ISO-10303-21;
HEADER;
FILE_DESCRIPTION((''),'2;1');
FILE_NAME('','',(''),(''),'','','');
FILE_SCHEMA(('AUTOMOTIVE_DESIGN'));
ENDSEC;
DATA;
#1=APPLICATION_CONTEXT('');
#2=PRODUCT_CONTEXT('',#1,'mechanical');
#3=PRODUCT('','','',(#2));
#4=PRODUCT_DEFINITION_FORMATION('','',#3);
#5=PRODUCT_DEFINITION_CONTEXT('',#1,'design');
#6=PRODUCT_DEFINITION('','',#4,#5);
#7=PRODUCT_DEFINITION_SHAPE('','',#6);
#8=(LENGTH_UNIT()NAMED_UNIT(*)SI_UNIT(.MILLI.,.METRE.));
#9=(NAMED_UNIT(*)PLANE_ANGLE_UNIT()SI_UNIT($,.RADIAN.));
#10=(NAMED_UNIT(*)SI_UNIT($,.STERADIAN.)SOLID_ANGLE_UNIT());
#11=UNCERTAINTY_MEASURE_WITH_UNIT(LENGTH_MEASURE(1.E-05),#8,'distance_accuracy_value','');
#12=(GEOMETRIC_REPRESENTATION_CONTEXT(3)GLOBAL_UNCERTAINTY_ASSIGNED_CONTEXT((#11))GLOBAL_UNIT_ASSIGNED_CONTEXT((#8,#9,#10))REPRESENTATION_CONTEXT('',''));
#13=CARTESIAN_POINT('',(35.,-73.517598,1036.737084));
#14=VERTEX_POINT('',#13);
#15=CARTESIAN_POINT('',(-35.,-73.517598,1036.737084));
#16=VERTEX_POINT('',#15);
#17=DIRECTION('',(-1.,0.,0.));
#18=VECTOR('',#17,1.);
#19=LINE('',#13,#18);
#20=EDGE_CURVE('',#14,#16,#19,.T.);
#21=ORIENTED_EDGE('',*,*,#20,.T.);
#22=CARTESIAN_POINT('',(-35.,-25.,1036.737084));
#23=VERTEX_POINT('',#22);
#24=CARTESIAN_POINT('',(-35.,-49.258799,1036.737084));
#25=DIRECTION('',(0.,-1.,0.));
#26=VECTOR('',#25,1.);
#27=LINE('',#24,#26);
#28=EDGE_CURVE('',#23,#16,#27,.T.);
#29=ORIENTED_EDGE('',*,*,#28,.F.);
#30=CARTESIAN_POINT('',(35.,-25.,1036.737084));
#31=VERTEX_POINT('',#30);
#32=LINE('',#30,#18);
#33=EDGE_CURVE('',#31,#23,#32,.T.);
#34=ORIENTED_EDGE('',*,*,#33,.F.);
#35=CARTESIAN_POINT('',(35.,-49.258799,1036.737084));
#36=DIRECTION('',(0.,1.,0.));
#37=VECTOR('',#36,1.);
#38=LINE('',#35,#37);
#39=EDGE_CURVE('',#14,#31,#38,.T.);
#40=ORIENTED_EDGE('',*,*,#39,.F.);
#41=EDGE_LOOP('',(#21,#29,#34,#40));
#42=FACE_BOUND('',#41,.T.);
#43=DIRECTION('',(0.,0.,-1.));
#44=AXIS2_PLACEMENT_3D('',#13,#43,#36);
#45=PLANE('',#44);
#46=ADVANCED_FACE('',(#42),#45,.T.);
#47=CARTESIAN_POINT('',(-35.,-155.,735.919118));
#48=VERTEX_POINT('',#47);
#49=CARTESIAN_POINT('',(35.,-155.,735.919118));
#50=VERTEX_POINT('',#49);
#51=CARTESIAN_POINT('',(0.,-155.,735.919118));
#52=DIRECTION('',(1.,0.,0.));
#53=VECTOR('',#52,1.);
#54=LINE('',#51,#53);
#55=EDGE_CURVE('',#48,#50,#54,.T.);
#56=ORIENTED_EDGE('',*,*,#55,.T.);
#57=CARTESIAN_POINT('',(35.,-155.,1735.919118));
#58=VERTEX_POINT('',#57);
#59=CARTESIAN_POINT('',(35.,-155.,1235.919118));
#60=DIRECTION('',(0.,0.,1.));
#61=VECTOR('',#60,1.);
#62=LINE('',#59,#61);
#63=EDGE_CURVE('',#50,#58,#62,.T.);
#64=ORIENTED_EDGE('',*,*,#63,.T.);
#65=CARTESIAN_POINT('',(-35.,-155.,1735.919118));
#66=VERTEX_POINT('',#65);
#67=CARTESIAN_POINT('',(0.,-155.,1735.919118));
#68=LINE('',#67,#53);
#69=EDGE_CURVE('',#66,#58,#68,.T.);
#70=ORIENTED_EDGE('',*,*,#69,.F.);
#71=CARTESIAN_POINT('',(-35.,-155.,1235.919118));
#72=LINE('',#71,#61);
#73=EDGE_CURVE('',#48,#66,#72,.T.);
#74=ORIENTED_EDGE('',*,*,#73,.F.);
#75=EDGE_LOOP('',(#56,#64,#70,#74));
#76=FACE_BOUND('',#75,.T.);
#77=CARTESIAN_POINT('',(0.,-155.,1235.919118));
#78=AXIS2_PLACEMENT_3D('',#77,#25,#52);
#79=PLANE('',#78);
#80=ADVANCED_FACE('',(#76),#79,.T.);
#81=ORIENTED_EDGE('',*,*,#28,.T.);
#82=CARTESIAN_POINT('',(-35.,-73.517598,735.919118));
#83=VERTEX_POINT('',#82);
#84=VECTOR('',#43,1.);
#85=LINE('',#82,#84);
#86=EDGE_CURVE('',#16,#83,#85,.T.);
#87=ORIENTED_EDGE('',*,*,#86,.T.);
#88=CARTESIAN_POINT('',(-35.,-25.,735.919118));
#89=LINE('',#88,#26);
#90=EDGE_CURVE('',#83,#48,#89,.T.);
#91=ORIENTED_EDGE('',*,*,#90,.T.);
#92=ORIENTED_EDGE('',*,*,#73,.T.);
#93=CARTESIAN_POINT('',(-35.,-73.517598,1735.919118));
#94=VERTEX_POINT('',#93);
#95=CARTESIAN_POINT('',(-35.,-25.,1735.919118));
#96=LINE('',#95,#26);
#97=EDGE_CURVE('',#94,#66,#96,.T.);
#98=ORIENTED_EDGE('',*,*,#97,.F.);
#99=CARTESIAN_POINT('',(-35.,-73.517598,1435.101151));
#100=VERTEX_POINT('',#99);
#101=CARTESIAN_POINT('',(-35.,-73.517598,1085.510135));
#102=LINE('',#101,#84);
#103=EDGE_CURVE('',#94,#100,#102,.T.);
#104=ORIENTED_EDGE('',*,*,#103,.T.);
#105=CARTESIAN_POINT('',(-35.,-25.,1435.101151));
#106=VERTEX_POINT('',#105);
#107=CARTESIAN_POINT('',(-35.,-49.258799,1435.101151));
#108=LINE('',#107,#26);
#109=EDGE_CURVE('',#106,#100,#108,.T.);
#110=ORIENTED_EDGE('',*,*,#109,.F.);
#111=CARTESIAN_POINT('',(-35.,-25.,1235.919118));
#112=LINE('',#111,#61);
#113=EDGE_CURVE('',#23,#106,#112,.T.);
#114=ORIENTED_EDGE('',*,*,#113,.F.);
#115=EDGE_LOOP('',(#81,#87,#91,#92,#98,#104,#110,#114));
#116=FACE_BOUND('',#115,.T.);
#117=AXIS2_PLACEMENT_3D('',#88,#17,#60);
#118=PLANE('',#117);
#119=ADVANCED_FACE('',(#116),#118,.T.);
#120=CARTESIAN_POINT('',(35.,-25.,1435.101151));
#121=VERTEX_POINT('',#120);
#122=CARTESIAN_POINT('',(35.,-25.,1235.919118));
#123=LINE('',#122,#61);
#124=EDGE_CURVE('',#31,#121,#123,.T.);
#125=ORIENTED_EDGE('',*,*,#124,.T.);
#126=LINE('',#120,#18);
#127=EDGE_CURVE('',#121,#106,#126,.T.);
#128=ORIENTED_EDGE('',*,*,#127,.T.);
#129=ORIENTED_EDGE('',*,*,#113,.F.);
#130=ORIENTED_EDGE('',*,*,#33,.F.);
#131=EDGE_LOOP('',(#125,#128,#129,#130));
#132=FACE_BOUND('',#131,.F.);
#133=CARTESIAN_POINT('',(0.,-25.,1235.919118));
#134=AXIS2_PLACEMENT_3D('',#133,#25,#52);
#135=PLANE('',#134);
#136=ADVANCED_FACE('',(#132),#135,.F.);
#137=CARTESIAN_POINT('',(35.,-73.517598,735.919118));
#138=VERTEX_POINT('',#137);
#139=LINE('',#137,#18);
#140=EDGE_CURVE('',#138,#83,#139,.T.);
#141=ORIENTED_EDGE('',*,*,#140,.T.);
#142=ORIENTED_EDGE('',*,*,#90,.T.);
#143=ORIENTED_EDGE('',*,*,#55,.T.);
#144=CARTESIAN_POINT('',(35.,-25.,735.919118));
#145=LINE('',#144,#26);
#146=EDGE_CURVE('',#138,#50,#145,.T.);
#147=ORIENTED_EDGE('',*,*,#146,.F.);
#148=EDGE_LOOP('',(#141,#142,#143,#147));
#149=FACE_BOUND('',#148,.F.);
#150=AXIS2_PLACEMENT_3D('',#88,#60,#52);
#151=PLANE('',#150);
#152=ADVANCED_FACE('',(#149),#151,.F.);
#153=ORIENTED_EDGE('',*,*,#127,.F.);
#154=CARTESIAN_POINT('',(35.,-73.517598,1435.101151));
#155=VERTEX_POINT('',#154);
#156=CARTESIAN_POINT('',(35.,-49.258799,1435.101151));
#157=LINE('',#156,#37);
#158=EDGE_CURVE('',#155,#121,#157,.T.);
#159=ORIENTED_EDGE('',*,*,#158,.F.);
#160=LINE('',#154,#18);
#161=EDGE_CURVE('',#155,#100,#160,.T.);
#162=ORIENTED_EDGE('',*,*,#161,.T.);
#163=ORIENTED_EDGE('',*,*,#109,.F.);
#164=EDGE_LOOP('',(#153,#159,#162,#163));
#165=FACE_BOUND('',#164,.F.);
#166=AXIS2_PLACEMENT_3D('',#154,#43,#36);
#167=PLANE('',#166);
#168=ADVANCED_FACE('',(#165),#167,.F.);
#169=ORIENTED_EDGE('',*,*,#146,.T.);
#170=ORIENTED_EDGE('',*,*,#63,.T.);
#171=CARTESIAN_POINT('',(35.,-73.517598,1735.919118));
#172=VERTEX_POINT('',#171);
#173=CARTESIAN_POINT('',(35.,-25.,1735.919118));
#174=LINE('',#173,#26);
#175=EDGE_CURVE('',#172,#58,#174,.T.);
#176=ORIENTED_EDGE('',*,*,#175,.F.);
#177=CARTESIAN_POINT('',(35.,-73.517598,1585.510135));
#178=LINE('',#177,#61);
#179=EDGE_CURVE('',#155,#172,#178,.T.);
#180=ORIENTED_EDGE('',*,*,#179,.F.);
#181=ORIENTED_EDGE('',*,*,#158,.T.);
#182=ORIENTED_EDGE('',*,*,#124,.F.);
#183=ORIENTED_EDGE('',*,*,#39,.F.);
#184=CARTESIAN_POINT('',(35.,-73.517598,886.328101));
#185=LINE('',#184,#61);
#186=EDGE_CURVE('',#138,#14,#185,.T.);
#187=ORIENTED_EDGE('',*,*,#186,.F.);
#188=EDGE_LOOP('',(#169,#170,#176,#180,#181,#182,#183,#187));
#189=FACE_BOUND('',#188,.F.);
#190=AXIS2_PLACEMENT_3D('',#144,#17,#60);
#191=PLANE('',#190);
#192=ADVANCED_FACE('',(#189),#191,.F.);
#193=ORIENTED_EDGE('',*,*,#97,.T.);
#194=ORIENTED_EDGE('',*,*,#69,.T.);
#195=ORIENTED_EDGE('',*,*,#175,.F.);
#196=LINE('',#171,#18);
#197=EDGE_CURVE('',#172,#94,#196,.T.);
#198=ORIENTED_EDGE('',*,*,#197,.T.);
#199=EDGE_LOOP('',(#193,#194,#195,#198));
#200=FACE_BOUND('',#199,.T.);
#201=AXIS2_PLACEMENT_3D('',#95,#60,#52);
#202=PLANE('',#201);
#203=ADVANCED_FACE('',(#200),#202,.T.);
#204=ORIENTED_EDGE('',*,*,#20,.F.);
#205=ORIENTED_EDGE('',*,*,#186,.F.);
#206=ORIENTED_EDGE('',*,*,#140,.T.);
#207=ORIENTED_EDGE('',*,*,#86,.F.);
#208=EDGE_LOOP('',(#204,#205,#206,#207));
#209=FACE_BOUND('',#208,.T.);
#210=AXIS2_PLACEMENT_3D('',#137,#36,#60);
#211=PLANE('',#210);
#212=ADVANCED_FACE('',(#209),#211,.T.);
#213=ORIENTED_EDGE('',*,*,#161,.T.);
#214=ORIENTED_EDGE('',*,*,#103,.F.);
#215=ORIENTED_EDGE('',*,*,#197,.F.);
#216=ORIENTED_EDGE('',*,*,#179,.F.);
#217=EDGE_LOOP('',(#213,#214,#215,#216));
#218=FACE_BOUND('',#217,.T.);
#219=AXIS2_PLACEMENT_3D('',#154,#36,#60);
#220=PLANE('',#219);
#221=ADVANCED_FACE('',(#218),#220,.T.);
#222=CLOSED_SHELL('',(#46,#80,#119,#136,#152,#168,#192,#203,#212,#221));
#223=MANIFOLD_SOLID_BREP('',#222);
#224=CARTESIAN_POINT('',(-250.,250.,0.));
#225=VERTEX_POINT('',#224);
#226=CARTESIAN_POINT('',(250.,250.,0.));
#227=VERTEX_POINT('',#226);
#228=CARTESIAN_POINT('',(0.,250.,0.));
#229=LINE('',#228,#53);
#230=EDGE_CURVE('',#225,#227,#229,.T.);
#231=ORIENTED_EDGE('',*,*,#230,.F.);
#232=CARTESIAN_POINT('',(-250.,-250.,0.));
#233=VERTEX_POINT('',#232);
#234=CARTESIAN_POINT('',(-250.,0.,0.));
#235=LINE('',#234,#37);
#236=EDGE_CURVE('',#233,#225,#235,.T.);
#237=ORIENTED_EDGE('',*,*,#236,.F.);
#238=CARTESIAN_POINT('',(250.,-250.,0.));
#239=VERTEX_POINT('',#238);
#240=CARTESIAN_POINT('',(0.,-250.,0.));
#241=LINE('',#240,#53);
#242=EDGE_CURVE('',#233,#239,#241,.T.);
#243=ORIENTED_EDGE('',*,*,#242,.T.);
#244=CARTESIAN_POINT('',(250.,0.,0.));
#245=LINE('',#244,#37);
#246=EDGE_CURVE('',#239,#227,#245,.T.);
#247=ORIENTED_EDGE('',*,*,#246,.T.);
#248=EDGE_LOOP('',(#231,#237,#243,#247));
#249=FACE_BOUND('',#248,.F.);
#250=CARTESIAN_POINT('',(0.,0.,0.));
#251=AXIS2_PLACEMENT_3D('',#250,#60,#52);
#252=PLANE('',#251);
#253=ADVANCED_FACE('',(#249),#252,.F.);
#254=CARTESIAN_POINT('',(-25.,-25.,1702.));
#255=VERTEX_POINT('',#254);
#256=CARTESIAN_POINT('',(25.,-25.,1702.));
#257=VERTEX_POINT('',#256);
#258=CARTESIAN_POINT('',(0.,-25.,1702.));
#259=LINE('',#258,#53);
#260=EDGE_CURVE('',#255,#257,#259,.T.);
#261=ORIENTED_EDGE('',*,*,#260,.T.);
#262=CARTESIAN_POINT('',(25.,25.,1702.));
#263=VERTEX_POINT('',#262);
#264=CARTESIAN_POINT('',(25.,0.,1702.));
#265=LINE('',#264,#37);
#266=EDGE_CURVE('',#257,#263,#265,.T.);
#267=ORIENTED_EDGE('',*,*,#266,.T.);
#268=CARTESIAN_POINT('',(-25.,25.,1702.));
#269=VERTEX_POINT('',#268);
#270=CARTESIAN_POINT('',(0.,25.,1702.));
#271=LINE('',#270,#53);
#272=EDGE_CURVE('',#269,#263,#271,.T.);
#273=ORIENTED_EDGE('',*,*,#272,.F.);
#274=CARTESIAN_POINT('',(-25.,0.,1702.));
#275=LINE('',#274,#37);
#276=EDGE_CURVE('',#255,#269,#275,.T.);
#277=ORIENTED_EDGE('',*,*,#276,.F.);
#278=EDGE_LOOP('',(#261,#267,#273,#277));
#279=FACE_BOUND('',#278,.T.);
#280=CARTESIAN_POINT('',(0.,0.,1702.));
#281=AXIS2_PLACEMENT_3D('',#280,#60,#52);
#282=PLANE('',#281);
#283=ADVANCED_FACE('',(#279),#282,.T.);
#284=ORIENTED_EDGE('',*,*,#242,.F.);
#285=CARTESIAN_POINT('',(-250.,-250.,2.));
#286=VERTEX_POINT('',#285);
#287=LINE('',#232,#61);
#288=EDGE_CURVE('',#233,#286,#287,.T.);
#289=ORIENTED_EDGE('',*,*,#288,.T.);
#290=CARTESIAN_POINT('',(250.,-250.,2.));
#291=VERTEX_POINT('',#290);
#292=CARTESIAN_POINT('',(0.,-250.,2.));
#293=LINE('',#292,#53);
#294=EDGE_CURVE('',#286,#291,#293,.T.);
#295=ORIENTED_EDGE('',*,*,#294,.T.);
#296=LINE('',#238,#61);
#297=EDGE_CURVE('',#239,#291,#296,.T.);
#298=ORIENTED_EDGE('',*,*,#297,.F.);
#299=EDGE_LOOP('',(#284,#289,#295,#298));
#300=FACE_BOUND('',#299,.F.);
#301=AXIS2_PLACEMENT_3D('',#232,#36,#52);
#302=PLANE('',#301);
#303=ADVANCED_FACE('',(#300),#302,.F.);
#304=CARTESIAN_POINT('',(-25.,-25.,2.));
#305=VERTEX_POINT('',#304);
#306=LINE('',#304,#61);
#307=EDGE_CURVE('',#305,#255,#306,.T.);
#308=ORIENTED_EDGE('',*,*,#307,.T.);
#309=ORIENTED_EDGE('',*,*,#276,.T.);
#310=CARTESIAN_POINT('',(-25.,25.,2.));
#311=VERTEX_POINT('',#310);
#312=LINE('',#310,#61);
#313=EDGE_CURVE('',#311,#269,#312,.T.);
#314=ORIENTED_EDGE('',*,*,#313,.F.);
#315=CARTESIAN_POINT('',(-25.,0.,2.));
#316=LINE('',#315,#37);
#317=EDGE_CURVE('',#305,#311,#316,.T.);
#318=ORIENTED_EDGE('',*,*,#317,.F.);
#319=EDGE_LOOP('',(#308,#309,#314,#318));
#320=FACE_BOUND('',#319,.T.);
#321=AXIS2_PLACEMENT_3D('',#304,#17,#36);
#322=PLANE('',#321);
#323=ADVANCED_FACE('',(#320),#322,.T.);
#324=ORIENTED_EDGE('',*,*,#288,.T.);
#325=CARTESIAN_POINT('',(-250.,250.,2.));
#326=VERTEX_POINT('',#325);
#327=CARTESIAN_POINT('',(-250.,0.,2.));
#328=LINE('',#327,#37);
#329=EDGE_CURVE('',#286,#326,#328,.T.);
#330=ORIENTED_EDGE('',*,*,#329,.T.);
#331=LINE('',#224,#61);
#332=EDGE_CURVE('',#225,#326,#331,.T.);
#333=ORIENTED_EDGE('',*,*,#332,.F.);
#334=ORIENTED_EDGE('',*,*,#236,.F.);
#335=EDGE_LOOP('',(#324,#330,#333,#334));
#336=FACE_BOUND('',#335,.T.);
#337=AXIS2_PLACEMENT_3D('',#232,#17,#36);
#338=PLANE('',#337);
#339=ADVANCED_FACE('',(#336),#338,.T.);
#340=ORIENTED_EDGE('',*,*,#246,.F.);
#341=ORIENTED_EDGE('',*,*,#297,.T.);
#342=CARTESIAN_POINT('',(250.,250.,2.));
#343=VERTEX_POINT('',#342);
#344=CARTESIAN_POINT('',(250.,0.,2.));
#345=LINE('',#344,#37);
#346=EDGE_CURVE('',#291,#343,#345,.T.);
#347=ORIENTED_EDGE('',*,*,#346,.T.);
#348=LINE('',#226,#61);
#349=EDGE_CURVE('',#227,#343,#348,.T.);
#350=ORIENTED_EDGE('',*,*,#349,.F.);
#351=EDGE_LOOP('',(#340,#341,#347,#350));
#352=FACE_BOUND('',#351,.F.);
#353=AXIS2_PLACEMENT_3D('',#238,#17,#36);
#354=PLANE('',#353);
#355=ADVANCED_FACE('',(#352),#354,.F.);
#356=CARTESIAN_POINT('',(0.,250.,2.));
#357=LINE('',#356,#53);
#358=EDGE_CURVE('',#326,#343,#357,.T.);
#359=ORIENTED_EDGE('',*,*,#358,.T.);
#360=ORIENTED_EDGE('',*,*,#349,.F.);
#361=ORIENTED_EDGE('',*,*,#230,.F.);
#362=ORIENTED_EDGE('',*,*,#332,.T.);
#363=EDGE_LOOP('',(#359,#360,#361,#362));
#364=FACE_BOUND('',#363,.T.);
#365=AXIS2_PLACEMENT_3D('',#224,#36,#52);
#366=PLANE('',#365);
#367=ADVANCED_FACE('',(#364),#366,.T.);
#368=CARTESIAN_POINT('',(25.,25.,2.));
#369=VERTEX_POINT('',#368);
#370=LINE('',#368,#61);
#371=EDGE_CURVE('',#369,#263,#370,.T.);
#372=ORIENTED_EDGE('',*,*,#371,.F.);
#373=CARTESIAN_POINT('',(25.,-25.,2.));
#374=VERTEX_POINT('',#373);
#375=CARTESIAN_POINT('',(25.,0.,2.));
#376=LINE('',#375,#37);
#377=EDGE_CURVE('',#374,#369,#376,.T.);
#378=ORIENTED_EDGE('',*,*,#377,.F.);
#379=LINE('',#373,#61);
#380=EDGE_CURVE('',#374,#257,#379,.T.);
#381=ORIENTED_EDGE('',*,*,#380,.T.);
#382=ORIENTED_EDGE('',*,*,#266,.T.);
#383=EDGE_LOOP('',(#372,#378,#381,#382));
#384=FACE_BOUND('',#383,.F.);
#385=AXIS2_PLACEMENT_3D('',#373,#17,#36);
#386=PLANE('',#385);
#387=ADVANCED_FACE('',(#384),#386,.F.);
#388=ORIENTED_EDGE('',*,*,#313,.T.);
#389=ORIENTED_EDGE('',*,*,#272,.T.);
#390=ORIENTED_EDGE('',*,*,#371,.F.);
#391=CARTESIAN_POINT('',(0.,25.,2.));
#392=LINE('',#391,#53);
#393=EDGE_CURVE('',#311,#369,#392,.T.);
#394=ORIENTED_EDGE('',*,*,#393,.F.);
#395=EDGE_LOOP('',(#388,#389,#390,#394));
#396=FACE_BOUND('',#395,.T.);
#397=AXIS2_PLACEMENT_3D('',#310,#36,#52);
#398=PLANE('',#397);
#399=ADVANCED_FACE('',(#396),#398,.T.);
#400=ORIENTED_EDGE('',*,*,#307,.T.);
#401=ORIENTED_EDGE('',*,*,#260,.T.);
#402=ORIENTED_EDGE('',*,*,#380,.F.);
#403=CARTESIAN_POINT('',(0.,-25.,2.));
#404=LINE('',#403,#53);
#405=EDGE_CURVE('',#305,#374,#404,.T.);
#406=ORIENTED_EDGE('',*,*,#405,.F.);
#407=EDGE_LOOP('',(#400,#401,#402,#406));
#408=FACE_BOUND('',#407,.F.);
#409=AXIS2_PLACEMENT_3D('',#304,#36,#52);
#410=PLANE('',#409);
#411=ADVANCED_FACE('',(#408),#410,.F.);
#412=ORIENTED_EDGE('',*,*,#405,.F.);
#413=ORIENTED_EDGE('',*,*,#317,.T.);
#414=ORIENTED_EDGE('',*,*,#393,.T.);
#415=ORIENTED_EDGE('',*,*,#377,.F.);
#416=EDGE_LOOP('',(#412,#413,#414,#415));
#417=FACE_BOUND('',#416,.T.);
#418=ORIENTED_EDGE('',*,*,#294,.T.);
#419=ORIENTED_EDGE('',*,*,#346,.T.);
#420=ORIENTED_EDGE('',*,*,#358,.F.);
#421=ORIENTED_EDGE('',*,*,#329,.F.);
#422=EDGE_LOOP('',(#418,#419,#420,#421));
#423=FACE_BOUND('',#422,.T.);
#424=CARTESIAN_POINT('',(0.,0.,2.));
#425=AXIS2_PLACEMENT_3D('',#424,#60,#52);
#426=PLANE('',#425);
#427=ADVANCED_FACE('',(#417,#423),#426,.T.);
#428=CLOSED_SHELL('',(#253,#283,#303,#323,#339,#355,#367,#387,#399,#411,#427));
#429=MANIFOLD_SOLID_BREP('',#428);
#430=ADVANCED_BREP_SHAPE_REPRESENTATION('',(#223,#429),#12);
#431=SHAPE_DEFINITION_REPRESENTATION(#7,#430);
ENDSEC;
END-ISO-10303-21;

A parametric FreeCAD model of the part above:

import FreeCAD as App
import Part
import Sketcher
from FreeCAD import Vector
Q = App.Units.Quantity

doc = App.newDocument("Part")
body = doc.addObject("PartDesign::Body", "Body")

sketch1 = body.newObject("Sketcher::SketchObject", "Sketch")
sketch1.AttachmentSupport = (doc.getObject("XY_Plane"), [""])
sketch1.MapMode = "FlatFace"
sketch1.addGeometry([
    Part.LineSegment(Vector(-250, 250, 0), Vector(-250, -250, 0)),
    Part.LineSegment(Vector(-250, -250, 0), Vector(250, -250, 0)),
    Part.LineSegment(Vector(250, -250, 0), Vector(250, 250, 0)),
    Part.LineSegment(Vector(250, 250, 0), Vector(-250, 250, 0)),
], False)
sketch1.addConstraint([
    Sketcher.Constraint("Coincident", 0, 2, 1, 1),
    Sketcher.Constraint("Coincident", 1, 2, 2, 1),
    Sketcher.Constraint("Coincident", 2, 2, 3, 1),
    Sketcher.Constraint("Coincident", 3, 2, 0, 1),
    Sketcher.Constraint("Vertical", 0),
    Sketcher.Constraint("Horizontal", 1),
    Sketcher.Constraint("Vertical", 2),
    Sketcher.Constraint("Horizontal", 3),
    Sketcher.Constraint("Symmetric", 0, 2, 2, 2, -1, 1),
    Sketcher.Constraint("Equal", 3, 0),
    Sketcher.Constraint("DistanceX", 1, 1, 1, 2, Q("500 mm")),
])
pad1 = body.newObject("PartDesign::Pad", "Pad")
pad1.Profile = sketch1
pad1.Length = 2

sketch2 = body.newObject("Sketcher::SketchObject", "Sketch001")
sketch2.AttachmentSupport = (doc.getObject("XY_Plane"), [""])
sketch2.MapMode = "FlatFace"
sketch2.AttachmentOffset = App.Placement(Vector(0, 0, 2), App.Rotation())
sketch2.addGeometry([
    Part.LineSegment(Vector(-25, 25, 0), Vector(-25, -25, 0)),
    Part.LineSegment(Vector(-25, -25, 0), Vector(25, -25, 0)),
    Part.LineSegment(Vector(25, -25, 0), Vector(25, 25, 0)),
    Part.LineSegment(Vector(25, 25, 0), Vector(-25, 25, 0)),
], False)
sketch2.addConstraint([
    Sketcher.Constraint("Coincident", 0, 2, 1, 1),
    Sketcher.Constraint("Coincident", 1, 2, 2, 1),
    Sketcher.Constraint("Coincident", 2, 2, 3, 1),
    Sketcher.Constraint("Coincident", 3, 2, 0, 1),
    Sketcher.Constraint("Vertical", 0),
    Sketcher.Constraint("Horizontal", 1),
    Sketcher.Constraint("Vertical", 2),
    Sketcher.Constraint("Horizontal", 3),
    Sketcher.Constraint("Symmetric", 0, 2, 2, 2, -1, 1),
    Sketcher.Constraint("Equal", 3, 0),
    Sketcher.Constraint("DistanceX", 1, 1, 1, 2, Q("50 mm")),
])
pad2 = body.newObject("PartDesign::Pad", "Pad001")
pad2.Profile = sketch2
pad2.Length = 1700
body2 = doc.addObject("PartDesign::Body", "Body001")

sketch3 = body2.newObject("Sketcher::SketchObject", "Sketch002")
sketch3.AttachmentSupport = (doc.getObject("XZ_Plane001"), [""])
sketch3.MapMode = "FlatFace"
sketch3.AttachmentOffset = App.Placement(Vector(0, 0, 25), App.Rotation())
sketch3.addGeometry([
    Part.LineSegment(Vector(-35, 1735.919118, 0), Vector(-35, 735.919118, 0)),
    Part.LineSegment(Vector(-35, 735.919118, 0), Vector(35, 735.919118, 0)),
    Part.LineSegment(Vector(35, 735.919118, 0), Vector(35, 1735.919118, 0)),
    Part.LineSegment(Vector(35, 1735.919118, 0), Vector(-35, 1735.919118, 0)),
], False)
sketch3.addConstraint([
    Sketcher.Constraint("Coincident", 0, 2, 1, 1),
    Sketcher.Constraint("Coincident", 1, 2, 2, 1),
    Sketcher.Constraint("Coincident", 2, 2, 3, 1),
    Sketcher.Constraint("Coincident", 3, 2, 0, 1),
    Sketcher.Constraint("Vertical", 0),
    Sketcher.Constraint("Horizontal", 1),
    Sketcher.Constraint("Vertical", 2),
    Sketcher.Constraint("Horizontal", 3),
    Sketcher.Constraint("DistanceX", 1, 1, 1, 2, Q("70 mm")),
    Sketcher.Constraint("DistanceY", 0, 2, 0, 1, Q("1000 mm")),
    Sketcher.Constraint("DistanceX", 0, 2, -1, 1, Q("35 mm")),
    Sketcher.Constraint("DistanceY", -1, 1, 0, 2, Q("735.919118 mm")),
])
pad3 = body2.newObject("PartDesign::Pad", "Pad002")
pad3.Profile = sketch3
pad3.Length = 130

sketch4 = body2.newObject("Sketcher::SketchObject", "Sketch003")
sketch4.AttachmentSupport = (doc.getObject("YZ_Plane001"), [""])
sketch4.MapMode = "FlatFace"
sketch4.AttachmentOffset = App.Placement(Vector(0, 0, 35), App.Rotation())
sketch4.addGeometry([
    Part.LineSegment(Vector(-73.517598, 1735.919118, 0), Vector(-73.517598, 1435.101151, 0)),
    Part.LineSegment(Vector(-73.517598, 1435.101151, 0), Vector(-25, 1435.101151, 0)),
    Part.LineSegment(Vector(-25, 1435.101151, 0), Vector(-25, 1735.919118, 0)),
    Part.LineSegment(Vector(-25, 1735.919118, 0), Vector(-73.517598, 1735.919118, 0)),
    Part.LineSegment(Vector(-73.517598, 1036.737084, 0), Vector(-73.517598, 735.919118, 0)),
    Part.LineSegment(Vector(-73.517598, 735.919118, 0), Vector(-25, 735.919118, 0)),
    Part.LineSegment(Vector(-25, 735.919118, 0), Vector(-25, 1036.737084, 0)),
    Part.LineSegment(Vector(-25, 1036.737084, 0), Vector(-73.517598, 1036.737084, 0)),
], False)
sketch4.addConstraint([
    Sketcher.Constraint("Coincident", 0, 2, 1, 1),
    Sketcher.Constraint("Coincident", 1, 2, 2, 1),
    Sketcher.Constraint("Coincident", 2, 2, 3, 1),
    Sketcher.Constraint("Coincident", 3, 2, 0, 1),
    Sketcher.Constraint("Coincident", 4, 2, 5, 1),
    Sketcher.Constraint("Coincident", 5, 2, 6, 1),
    Sketcher.Constraint("Coincident", 6, 2, 7, 1),
    Sketcher.Constraint("Coincident", 7, 2, 4, 1),
    Sketcher.Constraint("Vertical", 0),
    Sketcher.Constraint("Horizontal", 1),
    Sketcher.Constraint("Vertical", 2),
    Sketcher.Constraint("Horizontal", 3),
    Sketcher.Constraint("Vertical", 4),
    Sketcher.Constraint("Horizontal", 5),
    Sketcher.Constraint("Vertical", 6),
    Sketcher.Constraint("Horizontal", 7),
    Sketcher.Constraint("Vertical", 3, 2, 4, 2),
    Sketcher.Constraint("Vertical", 2, 2, 5, 2),
    Sketcher.Constraint("Equal", 2, 4),
    Sketcher.Constraint("DistanceX", 1, 2, -1, 1, Q("25 mm")),
    Sketcher.Constraint("DistanceY", 4, 2, 3, 2, Q("1000 mm")),
    Sketcher.Constraint("DistanceX", 1, 1, 1, 2, Q("48.517598 mm")),
    Sketcher.Constraint("DistanceY", 0, 2, 0, 1, Q("300.817966 mm")),
    Sketcher.Constraint("DistanceY", -1, 1, 0, 2, Q("1435.101151 mm")),
])
pocket1 = body2.newObject("PartDesign::Pocket", "Pocket")
pocket1.Profile = sketch4
pocket1.Type = "ThroughAll"

doc.recompute()
